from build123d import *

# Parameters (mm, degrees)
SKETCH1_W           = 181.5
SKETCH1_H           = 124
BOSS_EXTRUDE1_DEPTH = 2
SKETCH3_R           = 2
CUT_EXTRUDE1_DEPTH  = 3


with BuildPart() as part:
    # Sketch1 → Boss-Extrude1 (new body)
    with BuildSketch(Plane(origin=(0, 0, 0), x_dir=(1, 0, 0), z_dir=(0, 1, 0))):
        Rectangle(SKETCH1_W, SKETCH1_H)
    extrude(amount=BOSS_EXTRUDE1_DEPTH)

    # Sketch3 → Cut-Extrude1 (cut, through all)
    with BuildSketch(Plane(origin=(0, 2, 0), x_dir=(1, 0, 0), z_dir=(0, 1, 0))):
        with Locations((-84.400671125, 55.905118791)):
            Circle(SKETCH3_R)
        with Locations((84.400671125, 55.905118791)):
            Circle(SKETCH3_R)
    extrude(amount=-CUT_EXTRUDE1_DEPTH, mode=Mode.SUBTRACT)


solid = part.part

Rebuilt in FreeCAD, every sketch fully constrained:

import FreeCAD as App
import Part
import Sketcher
from FreeCAD import Vector

doc = App.newDocument("Part")
params = doc.addObject("Spreadsheet::Sheet", "Params")
for row, (alias, value) in enumerate([
    ("sketch1_height", "124 mm"),
    ("sketch1_width", "181.5 mm"),
    ("pad1_length", "2 mm"),
    ("sketch2_diameter", "4 mm"),
], start=1):
    params.set(f"A{row}", alias)
    params.set(f"B{row}", "=" + value)
    params.setAlias(f"B{row}", alias)

body = doc.addObject("PartDesign::Body", "Body")

sketch1 = body.newObject("Sketcher::SketchObject", "Sketch")
sketch1.AttachmentSupport = (doc.getObject("XZ_Plane"), [""])
sketch1.MapMode = "FlatFace"
sketch1.addGeometry([
    Part.LineSegment(Vector(-91, -62, 0), Vector(-91, 62, 0)),
    Part.LineSegment(Vector(-91, 62, 0), Vector(91, 62, 0)),
    Part.LineSegment(Vector(91, 62, 0), Vector(91, -62, 0)),
    Part.LineSegment(Vector(91, -62, 0), Vector(-91, -62, 0)),
], False)
sketch1.addConstraint([
    Sketcher.Constraint("Coincident", 0, 2, 1, 1),
    Sketcher.Constraint("Coincident", 1, 2, 2, 1),
    Sketcher.Constraint("Coincident", 2, 2, 3, 1),
    Sketcher.Constraint("Coincident", 3, 2, 0, 1),
    Sketcher.Constraint("Vertical", 0),
    Sketcher.Constraint("Horizontal", 1),
    Sketcher.Constraint("Vertical", 2),
    Sketcher.Constraint("Horizontal", 3),
    Sketcher.Constraint("Symmetric", 0, 2, 2, 2, -1, 1),
    Sketcher.Constraint("DistanceY", 0, 1, 0, 2, 124.0),
    Sketcher.Constraint("DistanceX", 1, 1, 1, 2, 181.5),
])
sketch1.setExpression("Constraints[9]", "Params.sketch1_height")
sketch1.setExpression("Constraints[10]", "Params.sketch1_width")
pad1 = body.newObject("PartDesign::Pad", "Pad")
pad1.Profile = sketch1
pad1.setExpression("Length", "Params.pad1_length")
pad1.Reversed = True

sketch2 = body.newObject("Sketcher::SketchObject", "Sketch001")
sketch2.AttachmentSupport = (doc.getObject("XZ_Plane"), [""])
sketch2.MapMode = "FlatFace"
sketch2.AttachmentOffset = App.Placement(Vector(0, 0, -2), App.Rotation())
sketch2.addGeometry([
    Part.Circle(Vector(-84.4, -55.9, 0), Vector(0, 0, 1), 2),
    Part.Circle(Vector(84.4, -55.9, 0), Vector(0, 0, 1), 2),
], False)
sketch2.addConstraint([
    Sketcher.Constraint("Equal", 0, 1),
    Sketcher.Constraint("Symmetric", 0, 3, 1, 3, -2),
    Sketcher.Constraint("Diameter", 0, 4.0),
    Sketcher.Constraint("DistanceX", 0, 3, -1, 1, 84.400671),
    Sketcher.Constraint("DistanceY", 0, 3, -1, 1, 55.905119),
])
sketch2.setExpression("Constraints[2]", "Params.sketch2_diameter")
pocket1 = body.newObject("PartDesign::Pocket", "Pocket")
pocket1.Profile = sketch2
pocket1.Type = "ThroughAll"
pocket1.Reversed = True

doc.recompute()
